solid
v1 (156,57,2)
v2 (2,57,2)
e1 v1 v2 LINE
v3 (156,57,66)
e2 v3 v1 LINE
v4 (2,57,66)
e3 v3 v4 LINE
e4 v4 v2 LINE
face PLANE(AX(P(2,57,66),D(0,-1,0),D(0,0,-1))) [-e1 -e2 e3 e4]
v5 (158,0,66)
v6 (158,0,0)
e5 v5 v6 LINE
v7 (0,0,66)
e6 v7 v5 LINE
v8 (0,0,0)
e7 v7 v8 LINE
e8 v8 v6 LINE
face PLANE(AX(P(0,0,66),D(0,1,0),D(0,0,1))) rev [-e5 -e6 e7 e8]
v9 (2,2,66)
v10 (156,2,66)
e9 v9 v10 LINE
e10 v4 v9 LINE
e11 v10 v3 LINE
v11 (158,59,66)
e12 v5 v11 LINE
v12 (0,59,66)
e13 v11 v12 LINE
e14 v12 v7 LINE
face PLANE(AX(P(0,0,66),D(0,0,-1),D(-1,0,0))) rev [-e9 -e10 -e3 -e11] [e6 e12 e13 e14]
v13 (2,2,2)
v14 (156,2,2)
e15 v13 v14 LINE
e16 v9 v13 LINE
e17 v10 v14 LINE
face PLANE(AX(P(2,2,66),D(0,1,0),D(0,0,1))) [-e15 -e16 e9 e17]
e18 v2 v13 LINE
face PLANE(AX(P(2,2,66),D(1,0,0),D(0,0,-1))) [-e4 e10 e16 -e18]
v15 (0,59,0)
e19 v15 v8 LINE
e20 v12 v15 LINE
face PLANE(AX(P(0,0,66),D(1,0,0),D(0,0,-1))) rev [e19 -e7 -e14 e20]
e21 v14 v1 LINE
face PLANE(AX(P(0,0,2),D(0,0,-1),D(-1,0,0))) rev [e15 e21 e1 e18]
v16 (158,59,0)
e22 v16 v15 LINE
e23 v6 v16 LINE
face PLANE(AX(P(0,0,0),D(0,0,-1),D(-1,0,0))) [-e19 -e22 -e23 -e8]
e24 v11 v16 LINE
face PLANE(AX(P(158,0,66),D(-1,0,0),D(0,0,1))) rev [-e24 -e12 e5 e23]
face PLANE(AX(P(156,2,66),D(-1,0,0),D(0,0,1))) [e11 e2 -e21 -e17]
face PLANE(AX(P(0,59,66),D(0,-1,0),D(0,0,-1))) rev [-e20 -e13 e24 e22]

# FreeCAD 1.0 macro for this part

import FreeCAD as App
import Part
import Sketcher

V = App.Vector
Q = App.Units.Quantity


def add_polygon(sketch, points):
    """Adds a closed chain of lines whose ends are joined by coincident constraints."""
    first, n = sketch.GeometryCount, len(points)
    for a, b in zip(points, points[1:] + points[:1]):
        sketch.addGeometry(Part.LineSegment(App.Vector(*a, 0), App.Vector(*b, 0)), False)
    for i in range(n):
        sketch.addConstraint(Sketcher.Constraint("Coincident", first + i, 2, first + (i + 1) % n, 1))

doc = App.newDocument("Part")
body = doc.addObject("PartDesign::Body", "Body")

# Sketch on XY plane
sketch1 = body.newObject("Sketcher::SketchObject", "Sketch")
sketch1.AttachmentSupport = (doc.getObject("XY_Plane"), [""])
sketch1.MapMode = "FlatFace"
add_polygon(sketch1, [(0, 59), (0, 0), (158, 0), (158, 59)])  # lines 0-3
add_polygon(sketch1, [(156, 2), (2, 2), (2, 57), (156, 57)])  # lines 4-7
sketch1.addConstraint([
    Sketcher.Constraint("Vertical", 0),
    Sketcher.Constraint("Horizontal", 1),
    Sketcher.Constraint("Vertical", 2),
    Sketcher.Constraint("Horizontal", 3),
    Sketcher.Constraint("Horizontal", 4),
    Sketcher.Constraint("Vertical", 5),
    Sketcher.Constraint("Horizontal", 6),
    Sketcher.Constraint("Vertical", 7),
    Sketcher.Constraint("Coincident", 0, 2, -1, 1),
    Sketcher.Constraint("DistanceX", 1, 1, 1, 2, Q("158 mm")),
    Sketcher.Constraint("DistanceX", 4, 2, 4, 1, Q("154 mm")),
    Sketcher.Constraint("DistanceY", 0, 2, 0, 1, Q("59 mm")),
    Sketcher.Constraint("DistanceY", 5, 1, 5, 2, Q("55 mm")),
    Sketcher.Constraint("DistanceX", -1, 1, 4, 2, Q("2 mm")),
    Sketcher.Constraint("DistanceY", -1, 1, 4, 2, Q("2 mm")),
])
pad1 = body.newObject("PartDesign::Pad", "Pad")
pad1.Profile = sketch1
pad1.Length = 66

# Sketch on XY plane
sketch2 = body.newObject("Sketcher::SketchObject", "Sketch001")
sketch2.AttachmentSupport = (doc.getObject("XY_Plane"), [""])
sketch2.MapMode = "FlatFace"
add_polygon(sketch2, [(2, 57), (2, 2), (156, 2), (156, 57)])  # lines 0-3
sketch2.addConstraint([
    Sketcher.Constraint("Vertical", 0),
    Sketcher.Constraint("Horizontal", 1),
    Sketcher.Constraint("Vertical", 2),
    Sketcher.Constraint("Horizontal", 3),
    Sketcher.Constraint("DistanceX", 1, 1, 1, 2, Q("154 mm")),
    Sketcher.Constraint("DistanceY", 0, 2, 0, 1, Q("55 mm")),
    Sketcher.Constraint("DistanceX", -1, 1, 0, 2, Q("2 mm")),
    Sketcher.Constraint("DistanceY", -1, 1, 0, 2, Q("2 mm")),
])
pad2 = body.newObject("PartDesign::Pad", "Pad001")
pad2.Profile = sketch2
pad2.Length = 2

doc.recompute()
